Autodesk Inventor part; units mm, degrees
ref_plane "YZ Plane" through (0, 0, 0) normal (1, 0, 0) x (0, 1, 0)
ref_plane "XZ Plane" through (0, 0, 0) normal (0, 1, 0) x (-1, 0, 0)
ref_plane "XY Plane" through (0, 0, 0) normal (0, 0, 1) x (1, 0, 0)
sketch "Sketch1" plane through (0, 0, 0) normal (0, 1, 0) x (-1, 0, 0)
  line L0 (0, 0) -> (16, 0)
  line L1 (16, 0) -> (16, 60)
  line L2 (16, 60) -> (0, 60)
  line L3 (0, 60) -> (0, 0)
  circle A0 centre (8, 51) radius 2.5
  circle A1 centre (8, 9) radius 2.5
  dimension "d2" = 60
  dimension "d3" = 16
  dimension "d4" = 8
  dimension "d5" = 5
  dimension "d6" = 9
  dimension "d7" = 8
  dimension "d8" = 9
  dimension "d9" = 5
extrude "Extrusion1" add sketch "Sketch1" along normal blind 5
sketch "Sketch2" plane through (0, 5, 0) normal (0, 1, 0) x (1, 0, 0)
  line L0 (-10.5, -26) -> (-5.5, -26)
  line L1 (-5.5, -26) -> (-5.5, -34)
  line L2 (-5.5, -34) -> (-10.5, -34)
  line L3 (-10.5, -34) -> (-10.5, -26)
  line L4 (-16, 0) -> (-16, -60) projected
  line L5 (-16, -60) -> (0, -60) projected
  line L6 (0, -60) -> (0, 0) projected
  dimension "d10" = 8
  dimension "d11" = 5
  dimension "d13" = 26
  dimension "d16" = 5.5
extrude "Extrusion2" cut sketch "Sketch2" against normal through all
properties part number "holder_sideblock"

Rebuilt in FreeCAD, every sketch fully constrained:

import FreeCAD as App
import Part
import Sketcher

V = App.Vector
Q = App.Units.Quantity

doc = App.newDocument("Part")
body = doc.addObject("PartDesign::Body", "Body")

# Sketch on XZ plane
sketch1 = body.newObject("Sketcher::SketchObject", "Sketch")
sketch1.AttachmentSupport = (doc.getObject("XZ_Plane"), [""])
sketch1.MapMode = "FlatFace"
sketch1.addGeometry([
    Part.LineSegment(V(0, 60, 0), V(0, 0, 0)),  # 0
    Part.LineSegment(V(0, 0, 0), V(-16, 0, 0)),  # 1
    Part.LineSegment(V(-16, 0, 0), V(-16, 60, 0)),  # 2
    Part.LineSegment(V(-16, 60, 0), V(0, 60, 0)),  # 3
    Part.Circle(V(-8, 9, 0), V(0, 0, 1), 2.5),  # 4
    Part.Circle(V(-8, 51, 0), V(0, 0, 1), 2.5),  # 5
], False)
sketch1.addConstraint([
    Sketcher.Constraint("Coincident", 0, 2, 1, 1),
    Sketcher.Constraint("Coincident", 1, 2, 2, 1),
    Sketcher.Constraint("Coincident", 2, 2, 3, 1),
    Sketcher.Constraint("Coincident", 3, 2, 0, 1),
    Sketcher.Constraint("Vertical", 0),
    Sketcher.Constraint("Horizontal", 1),
    Sketcher.Constraint("Vertical", 2),
    Sketcher.Constraint("Horizontal", 3),
    Sketcher.Constraint("Coincident", 0, 2, -1, 1),
    Sketcher.Constraint("Equal", 4, 5),
    Sketcher.Constraint("Vertical", 4, 3, 5, 3),
    Sketcher.Constraint("Diameter", 4, Q("5 mm")),
    Sketcher.Constraint("DistanceX", 1, 2, 1, 1, Q("16 mm")),
    Sketcher.Constraint("DistanceY", 0, 2, 0, 1, Q("60 mm")),
    Sketcher.Constraint("DistanceX", 4, 3, -1, 1, Q("8 mm")),
    Sketcher.Constraint("DistanceY", -1, 1, 4, 3, Q("9 mm")),
    Sketcher.Constraint("DistanceY", 5, 3, 2, 2, Q("9 mm")),
])
pad1 = body.newObject("PartDesign::Pad", "Pad")
pad1.Profile = sketch1
pad1.Length = 5
pad1.Reversed = True

# Sketch on XZ plane
sketch2 = body.newObject("Sketcher::SketchObject", "Sketch001")
sketch2.AttachmentSupport = (doc.getObject("XZ_Plane"), [""])
sketch2.MapMode = "FlatFace"
sketch2.AttachmentOffset = App.Placement(V(0, 0, -5), App.Rotation())
sketch2.addGeometry([
    Part.LineSegment(V(-6, 26, 0), V(-10, 26, 0)),
    Part.LineSegment(V(-10, 26, 0), V(-10, 34, 0)),
    Part.LineSegment(V(-10, 34, 0), V(-6, 34, 0)),
    Part.LineSegment(V(-6, 34, 0), V(-6, 26, 0)),
], False)
sketch2.addConstraint([
    Sketcher.Constraint("Coincident", 0, 2, 1, 1),
    Sketcher.Constraint("Coincident", 1, 2, 2, 1),
    Sketcher.Constraint("Coincident", 2, 2, 3, 1),
    Sketcher.Constraint("Coincident", 3, 2, 0, 1),
    Sketcher.Constraint("Horizontal", 0),
    Sketcher.Constraint("Vertical", 1),
    Sketcher.Constraint("Horizontal", 2),
    Sketcher.Constraint("Vertical", 3),
    Sketcher.Constraint("DistanceX", 0, 2, 0, 1, Q("5 mm")),
    Sketcher.Constraint("DistanceY", 1, 1, 1, 2, Q("8 mm")),
    Sketcher.Constraint("DistanceY", -1, 1, 0, 2, Q("26 mm")),
    Sketcher.Constraint("DistanceX", 2, 2, -1, 1, Q("5.5 mm")),
])
pocket1 = body.newObject("PartDesign::Pocket", "Pocket")
pocket1.Profile = sketch2
pocket1.Type = "ThroughAll"
pocket1.Reversed = True

doc.recompute()
